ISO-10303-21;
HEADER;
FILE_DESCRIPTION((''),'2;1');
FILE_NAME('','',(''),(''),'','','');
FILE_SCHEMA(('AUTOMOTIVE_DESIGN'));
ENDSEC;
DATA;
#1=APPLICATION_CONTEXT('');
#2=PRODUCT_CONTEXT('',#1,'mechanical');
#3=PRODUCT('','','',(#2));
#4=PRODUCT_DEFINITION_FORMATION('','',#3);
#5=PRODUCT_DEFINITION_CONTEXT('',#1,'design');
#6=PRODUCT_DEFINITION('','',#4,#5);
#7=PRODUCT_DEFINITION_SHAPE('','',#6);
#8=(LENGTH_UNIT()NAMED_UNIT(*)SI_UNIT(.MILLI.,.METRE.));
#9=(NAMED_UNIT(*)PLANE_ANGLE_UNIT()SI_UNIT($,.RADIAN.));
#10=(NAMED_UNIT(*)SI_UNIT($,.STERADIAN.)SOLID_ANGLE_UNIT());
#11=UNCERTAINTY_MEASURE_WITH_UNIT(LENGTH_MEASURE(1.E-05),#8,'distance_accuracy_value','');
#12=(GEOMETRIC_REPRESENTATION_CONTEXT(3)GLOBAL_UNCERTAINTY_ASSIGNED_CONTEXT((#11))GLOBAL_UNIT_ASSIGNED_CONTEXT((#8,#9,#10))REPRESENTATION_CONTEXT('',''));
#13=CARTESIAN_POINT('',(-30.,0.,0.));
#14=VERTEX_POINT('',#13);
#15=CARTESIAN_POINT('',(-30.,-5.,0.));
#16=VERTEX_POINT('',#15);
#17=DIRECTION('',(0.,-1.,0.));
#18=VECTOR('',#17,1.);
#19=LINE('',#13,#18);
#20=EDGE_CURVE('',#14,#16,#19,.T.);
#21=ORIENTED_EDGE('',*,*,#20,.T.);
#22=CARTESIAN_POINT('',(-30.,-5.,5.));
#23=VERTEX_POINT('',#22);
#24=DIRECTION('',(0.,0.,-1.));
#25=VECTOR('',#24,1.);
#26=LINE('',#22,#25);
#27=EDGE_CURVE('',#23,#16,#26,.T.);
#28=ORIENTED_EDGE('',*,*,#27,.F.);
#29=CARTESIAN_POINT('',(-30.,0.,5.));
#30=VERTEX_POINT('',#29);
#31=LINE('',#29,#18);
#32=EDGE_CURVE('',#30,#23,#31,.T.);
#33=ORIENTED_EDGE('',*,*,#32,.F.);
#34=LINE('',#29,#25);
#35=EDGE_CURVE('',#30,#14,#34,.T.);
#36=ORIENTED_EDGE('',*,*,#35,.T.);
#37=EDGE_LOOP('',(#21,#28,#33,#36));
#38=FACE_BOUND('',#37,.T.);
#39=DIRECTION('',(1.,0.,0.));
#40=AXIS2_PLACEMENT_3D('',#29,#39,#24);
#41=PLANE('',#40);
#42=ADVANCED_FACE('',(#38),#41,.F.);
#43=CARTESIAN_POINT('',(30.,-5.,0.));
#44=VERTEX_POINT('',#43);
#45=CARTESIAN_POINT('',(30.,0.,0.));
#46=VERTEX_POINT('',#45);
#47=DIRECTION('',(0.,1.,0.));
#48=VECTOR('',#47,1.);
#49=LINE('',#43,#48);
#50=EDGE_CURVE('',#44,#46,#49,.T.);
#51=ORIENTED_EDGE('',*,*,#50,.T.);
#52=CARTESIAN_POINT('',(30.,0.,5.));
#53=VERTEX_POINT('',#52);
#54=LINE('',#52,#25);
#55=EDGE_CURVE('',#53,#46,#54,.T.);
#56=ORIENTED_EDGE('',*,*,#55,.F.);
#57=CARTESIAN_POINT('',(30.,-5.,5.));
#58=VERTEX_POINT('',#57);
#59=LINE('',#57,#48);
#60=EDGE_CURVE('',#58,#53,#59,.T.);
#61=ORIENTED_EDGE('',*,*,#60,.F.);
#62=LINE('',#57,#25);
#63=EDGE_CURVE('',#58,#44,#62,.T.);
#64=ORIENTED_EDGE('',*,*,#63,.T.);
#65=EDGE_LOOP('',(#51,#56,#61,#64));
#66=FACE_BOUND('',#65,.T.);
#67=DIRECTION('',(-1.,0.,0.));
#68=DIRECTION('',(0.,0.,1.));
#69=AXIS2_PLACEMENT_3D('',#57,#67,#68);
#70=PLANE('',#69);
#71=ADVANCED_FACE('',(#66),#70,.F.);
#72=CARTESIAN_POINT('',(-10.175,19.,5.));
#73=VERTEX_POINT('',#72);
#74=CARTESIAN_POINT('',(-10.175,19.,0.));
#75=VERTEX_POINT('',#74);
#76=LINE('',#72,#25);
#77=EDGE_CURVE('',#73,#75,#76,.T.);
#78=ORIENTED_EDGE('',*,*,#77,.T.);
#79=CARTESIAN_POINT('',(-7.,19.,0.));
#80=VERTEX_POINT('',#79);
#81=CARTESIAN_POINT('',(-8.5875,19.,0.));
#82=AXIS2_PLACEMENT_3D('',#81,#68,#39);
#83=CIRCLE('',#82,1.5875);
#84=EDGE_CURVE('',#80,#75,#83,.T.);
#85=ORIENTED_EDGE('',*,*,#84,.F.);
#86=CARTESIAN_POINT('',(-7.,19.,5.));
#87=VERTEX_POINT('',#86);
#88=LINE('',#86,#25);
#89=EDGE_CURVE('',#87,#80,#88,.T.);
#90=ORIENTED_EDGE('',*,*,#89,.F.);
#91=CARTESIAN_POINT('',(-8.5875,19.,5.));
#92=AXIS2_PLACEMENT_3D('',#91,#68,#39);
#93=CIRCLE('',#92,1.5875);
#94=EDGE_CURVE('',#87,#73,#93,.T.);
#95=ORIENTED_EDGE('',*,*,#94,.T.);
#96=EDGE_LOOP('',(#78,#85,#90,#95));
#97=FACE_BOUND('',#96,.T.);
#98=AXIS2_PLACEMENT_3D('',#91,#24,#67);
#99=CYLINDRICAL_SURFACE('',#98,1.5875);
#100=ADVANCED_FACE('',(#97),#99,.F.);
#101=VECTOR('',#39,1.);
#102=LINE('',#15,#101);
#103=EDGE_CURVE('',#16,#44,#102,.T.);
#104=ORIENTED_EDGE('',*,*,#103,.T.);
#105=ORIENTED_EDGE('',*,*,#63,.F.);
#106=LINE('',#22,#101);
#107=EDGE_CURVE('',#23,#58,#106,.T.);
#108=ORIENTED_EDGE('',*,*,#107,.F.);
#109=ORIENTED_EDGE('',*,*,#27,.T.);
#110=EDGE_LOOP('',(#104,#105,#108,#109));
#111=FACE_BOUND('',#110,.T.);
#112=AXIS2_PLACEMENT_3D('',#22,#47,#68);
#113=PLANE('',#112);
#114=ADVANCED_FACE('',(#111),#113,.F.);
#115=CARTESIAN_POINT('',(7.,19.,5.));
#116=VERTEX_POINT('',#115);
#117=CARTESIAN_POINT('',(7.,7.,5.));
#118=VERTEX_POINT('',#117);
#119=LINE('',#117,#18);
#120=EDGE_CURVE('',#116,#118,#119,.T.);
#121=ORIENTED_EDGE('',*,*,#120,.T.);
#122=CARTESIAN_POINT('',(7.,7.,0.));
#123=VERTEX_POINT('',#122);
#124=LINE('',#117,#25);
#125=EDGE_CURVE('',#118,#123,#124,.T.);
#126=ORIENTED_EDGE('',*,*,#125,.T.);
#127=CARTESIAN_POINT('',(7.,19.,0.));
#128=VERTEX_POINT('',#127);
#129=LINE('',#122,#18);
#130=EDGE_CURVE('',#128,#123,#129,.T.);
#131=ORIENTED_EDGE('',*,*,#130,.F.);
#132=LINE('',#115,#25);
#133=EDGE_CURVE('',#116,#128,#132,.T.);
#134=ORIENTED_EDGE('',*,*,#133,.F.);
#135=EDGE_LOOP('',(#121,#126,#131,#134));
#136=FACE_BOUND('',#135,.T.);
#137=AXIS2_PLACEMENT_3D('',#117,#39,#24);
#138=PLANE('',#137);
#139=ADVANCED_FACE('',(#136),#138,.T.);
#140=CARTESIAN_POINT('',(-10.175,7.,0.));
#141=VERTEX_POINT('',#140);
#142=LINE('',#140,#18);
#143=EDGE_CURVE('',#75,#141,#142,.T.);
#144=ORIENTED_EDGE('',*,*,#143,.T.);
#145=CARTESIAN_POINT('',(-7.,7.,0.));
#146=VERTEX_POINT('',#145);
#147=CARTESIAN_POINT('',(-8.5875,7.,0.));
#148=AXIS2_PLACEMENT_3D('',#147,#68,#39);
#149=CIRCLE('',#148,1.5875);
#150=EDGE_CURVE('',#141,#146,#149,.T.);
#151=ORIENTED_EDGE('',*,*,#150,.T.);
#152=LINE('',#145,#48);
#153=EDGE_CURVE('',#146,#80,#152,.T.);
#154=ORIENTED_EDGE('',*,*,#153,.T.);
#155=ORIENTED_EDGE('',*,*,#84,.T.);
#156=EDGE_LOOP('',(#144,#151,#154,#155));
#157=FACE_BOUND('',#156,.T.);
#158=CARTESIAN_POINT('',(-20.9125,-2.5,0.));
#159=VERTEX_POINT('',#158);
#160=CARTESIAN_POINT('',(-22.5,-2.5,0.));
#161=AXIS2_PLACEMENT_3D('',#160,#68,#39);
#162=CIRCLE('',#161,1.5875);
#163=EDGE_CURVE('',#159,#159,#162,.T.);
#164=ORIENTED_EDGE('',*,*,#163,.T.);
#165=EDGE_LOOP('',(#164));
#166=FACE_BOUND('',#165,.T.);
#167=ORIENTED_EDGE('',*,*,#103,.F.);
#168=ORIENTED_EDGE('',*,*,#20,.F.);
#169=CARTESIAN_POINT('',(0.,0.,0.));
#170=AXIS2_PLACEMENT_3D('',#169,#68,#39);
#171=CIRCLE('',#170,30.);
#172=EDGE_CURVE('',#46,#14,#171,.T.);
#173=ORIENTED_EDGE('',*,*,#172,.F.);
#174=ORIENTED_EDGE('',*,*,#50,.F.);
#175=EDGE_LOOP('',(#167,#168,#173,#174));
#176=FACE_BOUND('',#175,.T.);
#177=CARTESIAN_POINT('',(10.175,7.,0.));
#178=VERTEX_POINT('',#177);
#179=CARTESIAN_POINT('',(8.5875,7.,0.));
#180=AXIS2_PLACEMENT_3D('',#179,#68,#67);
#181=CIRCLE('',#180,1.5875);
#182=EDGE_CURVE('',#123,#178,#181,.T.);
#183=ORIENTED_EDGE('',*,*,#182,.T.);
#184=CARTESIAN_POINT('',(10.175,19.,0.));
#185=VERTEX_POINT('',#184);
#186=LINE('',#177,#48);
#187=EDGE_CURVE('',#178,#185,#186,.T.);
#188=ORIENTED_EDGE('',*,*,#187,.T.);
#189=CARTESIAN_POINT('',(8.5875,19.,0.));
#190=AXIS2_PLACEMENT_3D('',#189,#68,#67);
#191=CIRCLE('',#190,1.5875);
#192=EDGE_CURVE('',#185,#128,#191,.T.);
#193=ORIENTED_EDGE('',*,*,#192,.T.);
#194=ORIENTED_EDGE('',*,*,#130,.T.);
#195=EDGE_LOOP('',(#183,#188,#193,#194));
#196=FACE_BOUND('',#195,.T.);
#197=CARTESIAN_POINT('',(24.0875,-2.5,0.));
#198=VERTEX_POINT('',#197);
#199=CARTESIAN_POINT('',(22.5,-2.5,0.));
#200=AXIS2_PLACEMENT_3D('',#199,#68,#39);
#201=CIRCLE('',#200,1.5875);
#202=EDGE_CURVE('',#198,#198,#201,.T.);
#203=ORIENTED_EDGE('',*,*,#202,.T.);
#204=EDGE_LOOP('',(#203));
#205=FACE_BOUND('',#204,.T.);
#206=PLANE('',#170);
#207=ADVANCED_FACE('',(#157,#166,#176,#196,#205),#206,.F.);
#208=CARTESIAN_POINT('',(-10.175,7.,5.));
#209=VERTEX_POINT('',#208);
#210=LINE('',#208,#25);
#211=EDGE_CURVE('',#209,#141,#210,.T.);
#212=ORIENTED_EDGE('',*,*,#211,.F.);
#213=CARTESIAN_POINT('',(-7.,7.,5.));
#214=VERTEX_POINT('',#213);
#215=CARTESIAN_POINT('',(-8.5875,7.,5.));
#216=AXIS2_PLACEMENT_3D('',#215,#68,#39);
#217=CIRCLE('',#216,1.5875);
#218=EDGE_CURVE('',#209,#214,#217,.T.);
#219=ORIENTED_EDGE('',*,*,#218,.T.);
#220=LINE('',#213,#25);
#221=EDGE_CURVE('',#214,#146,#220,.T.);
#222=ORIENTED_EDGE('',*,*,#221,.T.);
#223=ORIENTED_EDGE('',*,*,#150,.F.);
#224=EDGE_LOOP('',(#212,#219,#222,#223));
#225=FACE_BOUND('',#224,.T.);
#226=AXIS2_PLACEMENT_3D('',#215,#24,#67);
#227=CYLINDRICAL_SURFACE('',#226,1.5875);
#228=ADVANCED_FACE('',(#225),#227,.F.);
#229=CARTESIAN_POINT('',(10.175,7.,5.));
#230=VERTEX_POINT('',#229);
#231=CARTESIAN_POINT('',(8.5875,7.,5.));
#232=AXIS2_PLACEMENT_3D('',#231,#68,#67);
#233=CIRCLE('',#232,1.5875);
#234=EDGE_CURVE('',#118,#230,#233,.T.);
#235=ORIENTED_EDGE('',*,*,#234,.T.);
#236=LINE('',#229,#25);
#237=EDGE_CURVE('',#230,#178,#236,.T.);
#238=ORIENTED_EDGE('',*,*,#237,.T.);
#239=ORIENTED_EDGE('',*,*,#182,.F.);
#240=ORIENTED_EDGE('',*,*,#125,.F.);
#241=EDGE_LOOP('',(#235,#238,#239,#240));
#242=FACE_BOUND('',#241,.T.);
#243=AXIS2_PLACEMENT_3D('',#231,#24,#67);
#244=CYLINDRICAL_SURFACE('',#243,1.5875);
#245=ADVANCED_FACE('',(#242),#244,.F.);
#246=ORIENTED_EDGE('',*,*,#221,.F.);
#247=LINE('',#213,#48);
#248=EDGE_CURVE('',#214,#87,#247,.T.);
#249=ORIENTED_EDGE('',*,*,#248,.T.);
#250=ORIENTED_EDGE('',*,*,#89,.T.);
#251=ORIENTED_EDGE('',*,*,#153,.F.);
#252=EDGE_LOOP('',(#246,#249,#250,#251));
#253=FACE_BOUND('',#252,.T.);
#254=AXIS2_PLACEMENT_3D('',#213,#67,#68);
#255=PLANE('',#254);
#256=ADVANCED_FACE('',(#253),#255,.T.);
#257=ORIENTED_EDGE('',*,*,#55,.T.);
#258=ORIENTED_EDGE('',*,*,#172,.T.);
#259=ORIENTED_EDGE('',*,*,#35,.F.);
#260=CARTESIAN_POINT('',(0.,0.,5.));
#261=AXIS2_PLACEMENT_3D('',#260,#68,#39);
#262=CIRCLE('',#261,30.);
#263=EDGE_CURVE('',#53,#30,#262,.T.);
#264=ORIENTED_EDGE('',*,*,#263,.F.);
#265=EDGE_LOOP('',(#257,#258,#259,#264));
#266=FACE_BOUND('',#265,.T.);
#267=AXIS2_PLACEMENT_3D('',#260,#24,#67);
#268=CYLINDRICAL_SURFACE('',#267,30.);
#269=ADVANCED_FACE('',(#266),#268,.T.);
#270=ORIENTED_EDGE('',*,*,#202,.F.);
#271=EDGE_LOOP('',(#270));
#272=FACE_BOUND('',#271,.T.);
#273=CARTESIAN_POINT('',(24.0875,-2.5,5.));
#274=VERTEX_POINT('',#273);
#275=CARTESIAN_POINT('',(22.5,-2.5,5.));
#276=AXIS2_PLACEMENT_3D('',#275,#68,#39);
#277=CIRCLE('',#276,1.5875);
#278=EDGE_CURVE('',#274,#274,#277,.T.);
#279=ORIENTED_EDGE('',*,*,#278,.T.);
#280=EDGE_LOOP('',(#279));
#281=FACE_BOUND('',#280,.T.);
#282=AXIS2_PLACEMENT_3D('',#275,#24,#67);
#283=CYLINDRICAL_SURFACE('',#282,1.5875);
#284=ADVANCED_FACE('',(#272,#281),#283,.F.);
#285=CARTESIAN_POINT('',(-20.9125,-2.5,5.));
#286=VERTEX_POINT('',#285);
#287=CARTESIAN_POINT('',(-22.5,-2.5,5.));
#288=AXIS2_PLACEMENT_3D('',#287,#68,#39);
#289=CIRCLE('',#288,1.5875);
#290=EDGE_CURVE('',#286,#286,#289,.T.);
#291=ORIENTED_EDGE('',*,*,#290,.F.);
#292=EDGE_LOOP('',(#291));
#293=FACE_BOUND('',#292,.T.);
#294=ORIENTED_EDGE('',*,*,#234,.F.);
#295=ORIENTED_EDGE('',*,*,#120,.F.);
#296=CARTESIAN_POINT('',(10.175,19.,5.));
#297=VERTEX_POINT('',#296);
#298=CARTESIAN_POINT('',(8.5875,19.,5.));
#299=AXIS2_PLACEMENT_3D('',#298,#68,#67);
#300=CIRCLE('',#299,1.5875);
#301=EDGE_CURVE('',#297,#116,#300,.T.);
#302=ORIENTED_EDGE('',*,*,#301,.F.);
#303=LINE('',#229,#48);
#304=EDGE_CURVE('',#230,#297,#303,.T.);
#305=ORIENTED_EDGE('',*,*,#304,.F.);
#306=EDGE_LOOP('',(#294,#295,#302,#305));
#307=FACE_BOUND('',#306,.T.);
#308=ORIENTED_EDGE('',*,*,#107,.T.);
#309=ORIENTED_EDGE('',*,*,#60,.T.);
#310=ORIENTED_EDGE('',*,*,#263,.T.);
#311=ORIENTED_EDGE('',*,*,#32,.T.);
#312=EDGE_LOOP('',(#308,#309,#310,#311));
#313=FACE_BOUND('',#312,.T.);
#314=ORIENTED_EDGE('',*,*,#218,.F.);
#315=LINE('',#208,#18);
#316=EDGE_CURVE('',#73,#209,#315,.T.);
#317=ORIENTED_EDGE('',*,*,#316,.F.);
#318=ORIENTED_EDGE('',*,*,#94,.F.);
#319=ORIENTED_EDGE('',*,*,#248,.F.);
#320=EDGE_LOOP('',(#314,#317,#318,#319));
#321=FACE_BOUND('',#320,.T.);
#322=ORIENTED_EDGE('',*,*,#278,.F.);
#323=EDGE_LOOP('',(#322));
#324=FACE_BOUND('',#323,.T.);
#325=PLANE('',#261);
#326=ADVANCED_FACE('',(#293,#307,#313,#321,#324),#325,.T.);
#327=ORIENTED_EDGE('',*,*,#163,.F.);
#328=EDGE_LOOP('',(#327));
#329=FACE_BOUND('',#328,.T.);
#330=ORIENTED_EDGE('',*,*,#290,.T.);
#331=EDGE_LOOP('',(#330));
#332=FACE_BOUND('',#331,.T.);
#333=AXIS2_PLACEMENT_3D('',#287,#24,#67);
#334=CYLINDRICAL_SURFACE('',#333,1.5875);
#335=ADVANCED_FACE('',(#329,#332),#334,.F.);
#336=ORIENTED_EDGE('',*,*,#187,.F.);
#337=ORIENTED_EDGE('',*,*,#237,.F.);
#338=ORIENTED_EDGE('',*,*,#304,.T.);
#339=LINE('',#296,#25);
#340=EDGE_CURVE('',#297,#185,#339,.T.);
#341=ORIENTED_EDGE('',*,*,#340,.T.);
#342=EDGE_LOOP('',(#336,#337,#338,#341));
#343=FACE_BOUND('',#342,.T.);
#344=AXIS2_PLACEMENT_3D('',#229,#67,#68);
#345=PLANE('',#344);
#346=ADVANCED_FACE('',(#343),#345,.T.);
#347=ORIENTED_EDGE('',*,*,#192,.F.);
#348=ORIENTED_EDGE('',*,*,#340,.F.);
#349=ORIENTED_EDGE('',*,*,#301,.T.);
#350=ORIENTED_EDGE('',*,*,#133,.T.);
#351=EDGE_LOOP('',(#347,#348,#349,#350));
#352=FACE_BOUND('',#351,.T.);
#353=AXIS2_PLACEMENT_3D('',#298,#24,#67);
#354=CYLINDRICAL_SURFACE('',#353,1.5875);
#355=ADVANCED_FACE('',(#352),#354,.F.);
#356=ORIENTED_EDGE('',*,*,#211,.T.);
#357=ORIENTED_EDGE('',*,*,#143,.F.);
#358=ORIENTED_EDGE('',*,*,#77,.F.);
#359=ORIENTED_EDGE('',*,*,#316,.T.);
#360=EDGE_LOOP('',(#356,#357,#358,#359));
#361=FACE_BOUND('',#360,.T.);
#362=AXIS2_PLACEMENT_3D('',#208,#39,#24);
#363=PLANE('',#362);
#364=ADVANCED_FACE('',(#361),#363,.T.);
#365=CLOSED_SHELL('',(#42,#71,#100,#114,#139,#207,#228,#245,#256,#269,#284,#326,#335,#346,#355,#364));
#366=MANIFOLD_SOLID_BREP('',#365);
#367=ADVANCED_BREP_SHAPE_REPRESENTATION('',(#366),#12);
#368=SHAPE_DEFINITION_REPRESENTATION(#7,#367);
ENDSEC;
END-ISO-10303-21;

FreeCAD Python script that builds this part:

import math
import FreeCAD as App
import Part
import Sketcher
Q = App.Units.Quantity

doc = App.newDocument("Part")
body = doc.addObject("PartDesign::Body", "Body")

# Sketch on XY plane
sketch1 = doc.addObject("Sketcher::SketchObject", "Sketch")
body.addObject(sketch1)
sketch1.AttachmentSupport = (doc.XY_Plane, [""])
sketch1.MapMode = "FlatFace"
sketch1.addGeometry([
    Part.LineSegment(App.Vector(-30, 0, 0), App.Vector(-30, -5, 0)),  # 0
    Part.LineSegment(App.Vector(-30, -5, 0), App.Vector(30, -5, 0)),  # 1
    Part.LineSegment(App.Vector(30, -5, 0), App.Vector(30, 0, 0)),  # 2
    Part.ArcOfCircle(Part.Circle(App.Vector(0, 0, 0), App.Vector(0, 0, 1), 30), math.radians(0), math.radians(180)),  # 3
    Part.Circle(App.Vector(-22.5, -2.5, 0), App.Vector(0, 0, 1), 1.6),  # 4
    Part.Circle(App.Vector(22.5, -2.5, 0), App.Vector(0, 0, 1), 1.6),  # 5
    Part.ArcOfCircle(Part.Circle(App.Vector(-8.6, 7, 0), App.Vector(0, 0, 1), 1.6), math.radians(180), math.radians(360)),  # 6
    Part.LineSegment(App.Vector(-10.2, 7, 0), App.Vector(-10.2, 19, 0)),  # 7
    Part.ArcOfCircle(Part.Circle(App.Vector(-8.6, 19, 0), App.Vector(0, 0, 1), 1.6), math.radians(0), math.radians(180)),  # 8
    Part.LineSegment(App.Vector(-7, 19, 0), App.Vector(-7, 7, 0)),  # 9
    Part.ArcOfCircle(Part.Circle(App.Vector(8.6, 7, 0), App.Vector(0, 0, 1), 1.6), math.radians(180), math.radians(360)),  # 10
    Part.LineSegment(App.Vector(7, 7, 0), App.Vector(7, 19, 0)),  # 11
    Part.ArcOfCircle(Part.Circle(App.Vector(8.6, 19, 0), App.Vector(0, 0, 1), 1.6), math.radians(0), math.radians(180)),  # 12
    Part.LineSegment(App.Vector(10.2, 19, 0), App.Vector(10.2, 7, 0)),  # 13
], False)
sketch1.addConstraint([
    Sketcher.Constraint("Coincident", 0, 2, 1, 1),
    Sketcher.Constraint("Coincident", 1, 2, 2, 1),
    Sketcher.Constraint("Tangent", 2, 2, 3, 1),
    Sketcher.Constraint("Tangent", 3, 2, 0, 1),
    Sketcher.Constraint("Tangent", 6, 1, 7, 1),
    Sketcher.Constraint("Tangent", 7, 2, 8, 2),
    Sketcher.Constraint("Tangent", 8, 1, 9, 1),
    Sketcher.Constraint("Tangent", 9, 2, 6, 2),
    Sketcher.Constraint("Tangent", 10, 1, 11, 1),
    Sketcher.Constraint("Tangent", 11, 2, 12, 2),
    Sketcher.Constraint("Tangent", 12, 1, 13, 1),
    Sketcher.Constraint("Tangent", 13, 2, 10, 2),
    Sketcher.Constraint("Vertical", 0),
    Sketcher.Constraint("Horizontal", 1),
    Sketcher.Constraint("Vertical", 2),
    Sketcher.Constraint("Vertical", 7),
    Sketcher.Constraint("Vertical", 9),
    Sketcher.Constraint("Vertical", 11),
    Sketcher.Constraint("Vertical", 13),
    Sketcher.Constraint("Coincident", 3, 3, -1, 1),
    Sketcher.Constraint("Equal", 4, 5),
    Sketcher.Constraint("Equal", 5, 6),
    Sketcher.Constraint("Equal", 8, 10),
    Sketcher.Constraint("Symmetric", 4, 3, 5, 3, -2),
    Sketcher.Constraint("Symmetric", 6, 3, 10, 3, -2),
    Sketcher.Constraint("Horizontal", 8, 3, 12, 3),
    Sketcher.Constraint("Radius", 3, Q("30 mm")),
    Sketcher.Constraint("DistanceY", 0, 2, 0, 1, Q("5 mm")),
    Sketcher.Constraint("DistanceY", 7, 1, 7, 2, Q("12 mm")),
    Sketcher.Constraint("Diameter", 4, Q("3.175 mm")),
    Sketcher.Constraint("DistanceY", -1, 1, 6, 3, Q("7 mm")),
    Sketcher.Constraint("DistanceX", 8, 1, -1, 1, Q("7 mm")),
    Sketcher.Constraint("DistanceX", 4, 3, 5, 3, Q("45 mm")),
    Sketcher.Constraint("DistanceY", 4, 3, -1, 1, Q("2.5 mm")),
])
pad1 = doc.addObject("PartDesign::Pad", "Pad")
body.addObject(pad1)
pad1.Profile = sketch1
pad1.Length = 5

doc.recompute()
